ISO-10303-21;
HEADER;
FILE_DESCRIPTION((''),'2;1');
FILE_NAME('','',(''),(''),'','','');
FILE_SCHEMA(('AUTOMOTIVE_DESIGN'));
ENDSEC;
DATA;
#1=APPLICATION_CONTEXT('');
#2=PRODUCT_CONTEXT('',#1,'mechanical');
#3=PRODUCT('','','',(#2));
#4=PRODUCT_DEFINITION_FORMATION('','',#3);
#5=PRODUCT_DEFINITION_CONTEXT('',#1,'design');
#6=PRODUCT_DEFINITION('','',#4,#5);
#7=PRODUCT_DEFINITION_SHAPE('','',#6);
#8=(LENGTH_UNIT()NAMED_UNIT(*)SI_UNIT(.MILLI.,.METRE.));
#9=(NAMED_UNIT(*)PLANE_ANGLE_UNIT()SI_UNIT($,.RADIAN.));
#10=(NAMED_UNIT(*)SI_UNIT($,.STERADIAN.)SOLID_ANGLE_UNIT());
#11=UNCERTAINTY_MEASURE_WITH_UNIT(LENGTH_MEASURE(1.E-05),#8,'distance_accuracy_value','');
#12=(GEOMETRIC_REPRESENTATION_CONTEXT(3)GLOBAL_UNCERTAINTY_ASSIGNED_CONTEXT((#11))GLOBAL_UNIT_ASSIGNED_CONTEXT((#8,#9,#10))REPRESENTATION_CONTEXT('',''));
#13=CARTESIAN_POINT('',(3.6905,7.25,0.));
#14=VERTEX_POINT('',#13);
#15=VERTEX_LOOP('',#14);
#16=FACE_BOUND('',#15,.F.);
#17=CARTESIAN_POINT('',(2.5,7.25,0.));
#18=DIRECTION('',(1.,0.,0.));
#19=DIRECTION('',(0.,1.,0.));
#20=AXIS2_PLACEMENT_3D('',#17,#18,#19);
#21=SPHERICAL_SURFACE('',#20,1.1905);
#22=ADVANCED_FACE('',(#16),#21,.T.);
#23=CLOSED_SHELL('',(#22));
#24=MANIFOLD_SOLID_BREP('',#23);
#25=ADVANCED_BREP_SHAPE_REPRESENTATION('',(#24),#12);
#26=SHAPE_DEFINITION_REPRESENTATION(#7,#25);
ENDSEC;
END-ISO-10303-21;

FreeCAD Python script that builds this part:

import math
import FreeCAD as App
import Part
import Sketcher

V = App.Vector

doc = App.newDocument("Part")
params = doc.addObject("Spreadsheet::Sheet", "Params")
for row, (alias, value) in enumerate([
    ("revolution_angle", "360 deg"),
], start=1):
    params.set(f"A{row}", alias)
    params.set(f"B{row}", "=" + value)
    params.setAlias(f"B{row}", alias)

body = doc.addObject("PartDesign::Body", "Body")

# Sketch on XY plane
sketch1 = doc.addObject("Sketcher::SketchObject", "Sketch")
body.addObject(sketch1)
sketch1.AttachmentSupport = (doc.XY_Plane, [""])
sketch1.MapMode = "FlatFace"
sketch1.addGeometry(Part.ArcOfCircle(Part.Circle(V(2.5, 7.2, 0), V(0, 0, 1), 1.2), math.radians(0), math.radians(180)), False)
sketch1.addGeometry(Part.LineSegment(V(1.3, 7.2, 0), V(3.7, 7.2, 0)), False)
sketch1.addGeometry(Part.LineSegment(V(3.7, 7.2, 0), V(1.3, 7.2, 0)), True)  # axis
sketch1.addConstraint(Sketcher.Constraint("Coincident", 0, 1, 1, 2))
sketch1.addConstraint(Sketcher.Constraint("Coincident", 1, 1, 0, 2))
sketch1.addConstraint(Sketcher.Constraint("Horizontal", 1))
sketch1.addConstraint(Sketcher.Constraint("Horizontal", 2))
sketch1.addConstraint(Sketcher.Constraint("Coincident", 2, 1, 0, 1))
sketch1.addConstraint(Sketcher.Constraint("Equal", 1, 2))
sketch1.addConstraint(Sketcher.Constraint("DistanceX", -1, 1, 0, 3, 2.5))
sketch1.addConstraint(Sketcher.Constraint("Radius", 0, 1.1905))
sketch1.addConstraint(Sketcher.Constraint("DistanceY", -1, 1, 0, 3, 7.25))
sketch1.addConstraint(Sketcher.Constraint("DistanceY", -1, 1, 0, 1, 7.25))
revolution = doc.addObject("PartDesign::Revolution", "Revolution")
body.addObject(revolution)
revolution.Profile = sketch1
revolution.ReferenceAxis = (sketch1, ["Axis0"])
revolution.setExpression("Angle", "Params.revolution_angle")

doc.recompute()
